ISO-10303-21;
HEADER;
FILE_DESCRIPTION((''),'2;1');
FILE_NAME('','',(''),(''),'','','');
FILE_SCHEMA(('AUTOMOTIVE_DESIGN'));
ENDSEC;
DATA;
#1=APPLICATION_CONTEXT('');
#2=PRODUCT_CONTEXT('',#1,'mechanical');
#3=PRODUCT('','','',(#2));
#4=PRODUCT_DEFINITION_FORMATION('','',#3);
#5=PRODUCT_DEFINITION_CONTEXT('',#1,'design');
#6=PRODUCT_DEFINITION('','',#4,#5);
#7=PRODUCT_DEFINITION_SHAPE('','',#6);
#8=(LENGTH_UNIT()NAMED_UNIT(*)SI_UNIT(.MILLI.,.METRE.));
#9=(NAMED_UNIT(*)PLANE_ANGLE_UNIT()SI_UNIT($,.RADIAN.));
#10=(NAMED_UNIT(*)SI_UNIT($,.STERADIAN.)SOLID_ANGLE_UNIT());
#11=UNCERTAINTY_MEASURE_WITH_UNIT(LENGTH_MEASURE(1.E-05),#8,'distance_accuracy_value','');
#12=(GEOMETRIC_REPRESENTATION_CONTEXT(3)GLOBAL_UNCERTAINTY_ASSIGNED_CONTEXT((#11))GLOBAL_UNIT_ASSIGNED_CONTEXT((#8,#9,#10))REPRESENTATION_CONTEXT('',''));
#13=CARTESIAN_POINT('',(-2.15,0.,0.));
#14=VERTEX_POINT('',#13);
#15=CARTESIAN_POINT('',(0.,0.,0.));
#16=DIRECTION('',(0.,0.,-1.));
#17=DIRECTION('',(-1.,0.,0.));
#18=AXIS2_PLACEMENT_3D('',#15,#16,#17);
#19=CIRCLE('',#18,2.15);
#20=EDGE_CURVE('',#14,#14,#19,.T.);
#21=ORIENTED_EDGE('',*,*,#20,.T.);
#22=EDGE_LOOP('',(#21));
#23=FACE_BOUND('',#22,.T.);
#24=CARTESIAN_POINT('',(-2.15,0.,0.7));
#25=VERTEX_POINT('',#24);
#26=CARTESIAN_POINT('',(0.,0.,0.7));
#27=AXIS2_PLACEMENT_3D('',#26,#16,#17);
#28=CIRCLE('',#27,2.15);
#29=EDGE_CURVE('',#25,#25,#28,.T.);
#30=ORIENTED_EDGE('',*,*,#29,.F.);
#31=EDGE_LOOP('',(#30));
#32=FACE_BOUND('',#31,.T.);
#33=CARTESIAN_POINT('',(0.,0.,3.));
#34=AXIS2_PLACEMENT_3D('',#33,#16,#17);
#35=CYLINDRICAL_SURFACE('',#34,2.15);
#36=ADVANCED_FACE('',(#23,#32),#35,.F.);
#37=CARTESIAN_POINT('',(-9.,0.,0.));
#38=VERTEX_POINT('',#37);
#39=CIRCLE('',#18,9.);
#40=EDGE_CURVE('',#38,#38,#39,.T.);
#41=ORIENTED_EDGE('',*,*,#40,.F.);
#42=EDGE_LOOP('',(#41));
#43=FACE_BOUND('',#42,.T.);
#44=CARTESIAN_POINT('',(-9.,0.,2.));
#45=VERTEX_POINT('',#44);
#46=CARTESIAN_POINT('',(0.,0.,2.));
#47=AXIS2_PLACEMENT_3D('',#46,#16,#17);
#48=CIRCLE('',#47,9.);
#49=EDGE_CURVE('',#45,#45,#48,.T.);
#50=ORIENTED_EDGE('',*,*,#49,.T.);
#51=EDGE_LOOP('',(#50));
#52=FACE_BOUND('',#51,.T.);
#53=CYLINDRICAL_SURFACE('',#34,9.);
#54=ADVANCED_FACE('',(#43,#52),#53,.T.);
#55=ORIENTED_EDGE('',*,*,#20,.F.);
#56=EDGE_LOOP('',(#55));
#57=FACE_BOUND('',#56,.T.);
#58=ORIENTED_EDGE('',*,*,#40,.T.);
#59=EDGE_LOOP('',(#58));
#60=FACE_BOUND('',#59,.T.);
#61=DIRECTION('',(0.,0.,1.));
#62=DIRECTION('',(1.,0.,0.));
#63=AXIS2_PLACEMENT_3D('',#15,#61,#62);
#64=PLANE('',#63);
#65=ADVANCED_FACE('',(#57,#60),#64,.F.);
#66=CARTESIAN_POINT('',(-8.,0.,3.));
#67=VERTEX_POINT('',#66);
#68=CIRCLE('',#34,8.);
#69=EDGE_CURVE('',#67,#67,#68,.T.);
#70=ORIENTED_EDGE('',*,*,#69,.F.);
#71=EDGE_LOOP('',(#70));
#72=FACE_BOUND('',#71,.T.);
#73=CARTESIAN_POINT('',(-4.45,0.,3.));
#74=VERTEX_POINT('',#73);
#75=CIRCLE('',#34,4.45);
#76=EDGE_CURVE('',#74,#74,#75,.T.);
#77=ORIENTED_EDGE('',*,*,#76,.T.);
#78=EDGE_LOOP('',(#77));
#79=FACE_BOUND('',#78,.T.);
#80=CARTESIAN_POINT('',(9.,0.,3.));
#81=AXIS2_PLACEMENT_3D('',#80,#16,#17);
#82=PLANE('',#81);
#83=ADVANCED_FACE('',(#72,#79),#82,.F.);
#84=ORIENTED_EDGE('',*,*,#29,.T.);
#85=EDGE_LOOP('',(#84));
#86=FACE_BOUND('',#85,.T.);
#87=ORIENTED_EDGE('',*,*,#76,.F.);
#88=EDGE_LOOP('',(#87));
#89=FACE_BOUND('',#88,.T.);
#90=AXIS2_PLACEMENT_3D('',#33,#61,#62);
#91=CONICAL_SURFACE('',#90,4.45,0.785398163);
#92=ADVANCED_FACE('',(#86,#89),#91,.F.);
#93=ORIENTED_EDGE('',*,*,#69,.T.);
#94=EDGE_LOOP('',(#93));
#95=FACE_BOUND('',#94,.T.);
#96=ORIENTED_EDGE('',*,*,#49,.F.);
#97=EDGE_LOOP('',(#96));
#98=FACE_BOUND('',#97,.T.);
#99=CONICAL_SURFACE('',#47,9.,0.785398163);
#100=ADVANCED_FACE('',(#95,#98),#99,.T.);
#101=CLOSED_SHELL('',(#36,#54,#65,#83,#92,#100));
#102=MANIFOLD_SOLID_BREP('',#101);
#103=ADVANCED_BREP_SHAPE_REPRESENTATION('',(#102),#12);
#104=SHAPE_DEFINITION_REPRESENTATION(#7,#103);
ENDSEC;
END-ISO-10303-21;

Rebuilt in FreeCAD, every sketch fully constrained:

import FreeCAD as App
import Part
import Sketcher

V = App.Vector
Q = App.Units.Quantity

doc = App.newDocument("Part")
body = doc.addObject("PartDesign::Body", "Body")

# Sketch on XZ plane
sketch1 = body.newObject("Sketcher::SketchObject", "Sketch")
sketch1.AttachmentSupport = (doc.getObject("XZ_Plane"), [""])
sketch1.MapMode = "FlatFace"
sketch1.addGeometry([
    Part.LineSegment(V(0, 0, 0), V(0, 3, 0)),
    Part.LineSegment(V(0, 3, 0), V(9, 3, 0)),
    Part.LineSegment(V(9, 3, 0), V(9, 0, 0)),
    Part.LineSegment(V(9, 0, 0), V(0, 0, 0)),
], False)
sketch1.addConstraint([
    Sketcher.Constraint("Coincident", 0, 2, 1, 1),
    Sketcher.Constraint("Coincident", 1, 2, 2, 1),
    Sketcher.Constraint("Coincident", 2, 2, 3, 1),
    Sketcher.Constraint("Coincident", 3, 2, 0, 1),
    Sketcher.Constraint("Vertical", 0),
    Sketcher.Constraint("Horizontal", 1),
    Sketcher.Constraint("Vertical", 2),
    Sketcher.Constraint("Horizontal", 3),
    Sketcher.Constraint("Coincident", 3, 2, -1, 1),
    Sketcher.Constraint("DistanceX", 1, 1, 1, 2, Q("9 mm")),
    Sketcher.Constraint("DistanceY", 0, 1, 0, 2, Q("3 mm")),
])
revolution = body.newObject("PartDesign::Revolution", "Revolution")
revolution.Profile = sketch1
revolution.ReferenceAxis = (sketch1, ["V_Axis"])
revolution.Angle = 360

# Sketch on XZ plane
sketch2 = body.newObject("Sketcher::SketchObject", "Sketch001")
sketch2.AttachmentSupport = (doc.getObject("XZ_Plane"), [""])
sketch2.MapMode = "FlatFace"
sketch2.addGeometry([
    Part.LineSegment(V(8, 3, 0), V(9, 3, 0)),
    Part.LineSegment(V(9, 3, 0), V(9, 2, 0)),
    Part.LineSegment(V(9, 2, 0), V(8, 3, 0)),
], False)
sketch2.addConstraint([
    Sketcher.Constraint("Coincident", 0, 2, 1, 1),
    Sketcher.Constraint("Coincident", 1, 2, 2, 1),
    Sketcher.Constraint("Coincident", 2, 2, 0, 1),
    Sketcher.Constraint("Horizontal", 0),
    Sketcher.Constraint("Vertical", 1),
    Sketcher.Constraint("Equal", 0, 1),
    Sketcher.Constraint("DistanceX", 0, 1, 0, 2, Q("1 mm")),
    Sketcher.Constraint("DistanceX", -1, 1, 0, 2, Q("9 mm")),
    Sketcher.Constraint("DistanceY", -1, 1, 0, 2, Q("3 mm")),
])
groove = body.newObject("PartDesign::Groove", "Groove")
groove.Profile = sketch2
groove.ReferenceAxis = (sketch2, ["V_Axis"])
groove.Angle = 360

# Sketch on XZ plane
sketch3 = body.newObject("Sketcher::SketchObject", "Sketch002")
sketch3.AttachmentSupport = (doc.getObject("XZ_Plane"), [""])
sketch3.MapMode = "FlatFace"
sketch3.addGeometry([
    Part.LineSegment(V(2.1, 0, 0), V(0, 0, 0)),  # 0
    Part.LineSegment(V(0, 0, 0), V(0, 3, 0)),  # 1
    Part.LineSegment(V(0, 3, 0), V(4.5, 3, 0)),  # 2
    Part.LineSegment(V(4.5, 3, 0), V(2.1, 0.7, 0)),  # 3
    Part.LineSegment(V(2.1, 0.7, 0), V(2.1, 0, 0)),  # 4
], False)
sketch3.addConstraint([
    Sketcher.Constraint("Coincident", 0, 2, 1, 1),
    Sketcher.Constraint("Coincident", 1, 2, 2, 1),
    Sketcher.Constraint("Coincident", 2, 2, 3, 1),
    Sketcher.Constraint("Coincident", 3, 2, 4, 1),
    Sketcher.Constraint("Coincident", 4, 2, 0, 1),
    Sketcher.Constraint("Horizontal", 0),
    Sketcher.Constraint("Vertical", 1),
    Sketcher.Constraint("Horizontal", 2),
    Sketcher.Constraint("Vertical", 4),
    Sketcher.Constraint("Coincident", 0, 2, -1, 1),
    Sketcher.Constraint("DistanceY", 1, 1, 1, 2, Q("3 mm")),
    Sketcher.Constraint("Angle", 3, Q("-135 deg")),
    Sketcher.Constraint("DistanceY", 4, 2, 4, 1, Q("0.7 mm")),
    Sketcher.Constraint("DistanceX", 0, 2, 0, 1, Q("2.15 mm")),
])
groove2 = body.newObject("PartDesign::Groove", "Groove001")
groove2.Profile = sketch3
groove2.ReferenceAxis = (sketch3, ["V_Axis"])
groove2.Angle = 360
body2 = doc.addObject("PartDesign::Body", "Body001")

# Sketch on YZ plane
sketch4 = body2.newObject("Sketcher::SketchObject", "Sketch003")
sketch4.AttachmentSupport = (doc.getObject("YZ_Plane001"), [""])
sketch4.MapMode = "FlatFace"
sketch4.addGeometry(Part.Circle(V(0, 0, 0), V(0, 0, 1), 7), False)
sketch4.addConstraint([
    Sketcher.Constraint("Coincident", 0, 3, -1, 1),
    Sketcher.Constraint("Diameter", 0, Q("13.5 mm")),
])
pad1 = body2.newObject("PartDesign::Pad", "Pad")
pad1.Profile = sketch4
pad1.Length = 4.5
body2.Visibility = False

doc.recompute()
